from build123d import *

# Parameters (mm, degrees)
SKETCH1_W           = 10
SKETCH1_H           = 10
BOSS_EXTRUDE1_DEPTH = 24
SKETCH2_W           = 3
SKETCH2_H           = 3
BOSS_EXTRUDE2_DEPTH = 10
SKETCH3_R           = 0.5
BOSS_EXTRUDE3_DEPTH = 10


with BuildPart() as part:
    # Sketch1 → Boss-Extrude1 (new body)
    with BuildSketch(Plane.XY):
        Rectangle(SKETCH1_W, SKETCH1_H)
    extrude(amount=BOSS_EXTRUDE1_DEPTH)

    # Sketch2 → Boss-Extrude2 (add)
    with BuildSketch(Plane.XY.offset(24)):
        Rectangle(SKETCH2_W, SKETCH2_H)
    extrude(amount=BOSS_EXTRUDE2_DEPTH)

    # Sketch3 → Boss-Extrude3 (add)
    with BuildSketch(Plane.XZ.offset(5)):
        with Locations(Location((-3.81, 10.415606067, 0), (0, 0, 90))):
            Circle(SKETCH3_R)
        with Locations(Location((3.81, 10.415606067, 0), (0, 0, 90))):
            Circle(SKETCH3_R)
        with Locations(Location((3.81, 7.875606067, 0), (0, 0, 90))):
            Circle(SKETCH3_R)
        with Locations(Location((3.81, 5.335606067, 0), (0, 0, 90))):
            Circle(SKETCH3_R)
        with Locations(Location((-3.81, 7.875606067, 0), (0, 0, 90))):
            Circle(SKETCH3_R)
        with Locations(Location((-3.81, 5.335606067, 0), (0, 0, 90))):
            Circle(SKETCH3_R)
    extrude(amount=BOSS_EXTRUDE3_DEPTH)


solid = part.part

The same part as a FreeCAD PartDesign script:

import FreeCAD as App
import Part
import Sketcher
from FreeCAD import Vector
Q = App.Units.Quantity

doc = App.newDocument("Part")
body = doc.addObject("PartDesign::Body", "Body")

# Sketch on XY plane
sketch1 = body.newObject("Sketcher::SketchObject", "Sketch")
sketch1.AttachmentSupport = (doc.getObject("XY_Plane"), [""])
sketch1.MapMode = "FlatFace"
sketch1.addGeometry(Part.LineSegment(Vector(-5, 5, 0), Vector(-5, -5, 0)), False)
sketch1.addGeometry(Part.LineSegment(Vector(-5, -5, 0), Vector(5, -5, 0)), False)
sketch1.addGeometry(Part.LineSegment(Vector(5, -5, 0), Vector(5, 5, 0)), False)
sketch1.addGeometry(Part.LineSegment(Vector(5, 5, 0), Vector(-5, 5, 0)), False)
sketch1.addConstraint(Sketcher.Constraint("Coincident", 0, 2, 1, 1))
sketch1.addConstraint(Sketcher.Constraint("Coincident", 1, 2, 2, 1))
sketch1.addConstraint(Sketcher.Constraint("Coincident", 2, 2, 3, 1))
sketch1.addConstraint(Sketcher.Constraint("Coincident", 3, 2, 0, 1))
sketch1.addConstraint(Sketcher.Constraint("Vertical", 0))
sketch1.addConstraint(Sketcher.Constraint("Horizontal", 1))
sketch1.addConstraint(Sketcher.Constraint("Vertical", 2))
sketch1.addConstraint(Sketcher.Constraint("Horizontal", 3))
sketch1.addConstraint(Sketcher.Constraint("Symmetric", 0, 2, 2, 2, -1, 1))
sketch1.addConstraint(Sketcher.Constraint("Equal", 3, 0))
sketch1.addConstraint(Sketcher.Constraint("DistanceX", 1, 1, 1, 2, Q("10 mm")))
pad1 = body.newObject("PartDesign::Pad", "Pad")
pad1.Profile = sketch1
pad1.Length = 24

# Sketch on XY plane
sketch2 = body.newObject("Sketcher::SketchObject", "Sketch001")
sketch2.AttachmentSupport = (doc.getObject("XY_Plane"), [""])
sketch2.MapMode = "FlatFace"
sketch2.AttachmentOffset = App.Placement(Vector(0, 0, 24), App.Rotation())
sketch2.addGeometry(Part.LineSegment(Vector(-1.5, 1.5, 0), Vector(-1.5, -1.5, 0)), False)
sketch2.addGeometry(Part.LineSegment(Vector(-1.5, -1.5, 0), Vector(1.5, -1.5, 0)), False)
sketch2.addGeometry(Part.LineSegment(Vector(1.5, -1.5, 0), Vector(1.5, 1.5, 0)), False)
sketch2.addGeometry(Part.LineSegment(Vector(1.5, 1.5, 0), Vector(-1.5, 1.5, 0)), False)
sketch2.addConstraint(Sketcher.Constraint("Coincident", 0, 2, 1, 1))
sketch2.addConstraint(Sketcher.Constraint("Coincident", 1, 2, 2, 1))
sketch2.addConstraint(Sketcher.Constraint("Coincident", 2, 2, 3, 1))
sketch2.addConstraint(Sketcher.Constraint("Coincident", 3, 2, 0, 1))
sketch2.addConstraint(Sketcher.Constraint("Vertical", 0))
sketch2.addConstraint(Sketcher.Constraint("Horizontal", 1))
sketch2.addConstraint(Sketcher.Constraint("Vertical", 2))
sketch2.addConstraint(Sketcher.Constraint("Horizontal", 3))
sketch2.addConstraint(Sketcher.Constraint("Symmetric", 0, 2, 2, 2, -1, 1))
sketch2.addConstraint(Sketcher.Constraint("Equal", 3, 0))
sketch2.addConstraint(Sketcher.Constraint("DistanceX", 1, 1, 1, 2, Q("3 mm")))
pad2 = body.newObject("PartDesign::Pad", "Pad001")
pad2.Profile = sketch2
pad2.Length = 10

# Sketch on XZ plane
sketch3 = body.newObject("Sketcher::SketchObject", "Sketch002")
sketch3.AttachmentSupport = (doc.getObject("XZ_Plane"), [""])
sketch3.MapMode = "FlatFace"
sketch3.AttachmentOffset = App.Placement(Vector(0, 0, 5), App.Rotation())
sketch3.addGeometry(Part.Circle(Vector(-3.81, 10.415606, 0), Vector(0, 0, 1), 0.5), False)
sketch3.addGeometry(Part.Circle(Vector(3.81, 10.415606, 0), Vector(0, 0, 1), 0.5), False)
sketch3.addGeometry(Part.Circle(Vector(3.81, 7.875606, 0), Vector(0, 0, 1), 0.5), False)
sketch3.addGeometry(Part.Circle(Vector(3.81, 5.335606, 0), Vector(0, 0, 1), 0.5), False)
sketch3.addGeometry(Part.Circle(Vector(-3.81, 7.875606, 0), Vector(0, 0, 1), 0.5), False)
sketch3.addGeometry(Part.Circle(Vector(-3.81, 5.335606, 0), Vector(0, 0, 1), 0.5), False)
sketch3.addConstraint(Sketcher.Constraint("Equal", 0, 1))
sketch3.addConstraint(Sketcher.Constraint("Equal", 1, 2))
sketch3.addConstraint(Sketcher.Constraint("Equal", 2, 3))
sketch3.addConstraint(Sketcher.Constraint("Equal", 3, 4))
sketch3.addConstraint(Sketcher.Constraint("Equal", 4, 5))
sketch3.addConstraint(Sketcher.Constraint("Symmetric", 0, 3, 1, 3, -2))
sketch3.addConstraint(Sketcher.Constraint("Symmetric", 2, 3, 4, 3, -2))
sketch3.addConstraint(Sketcher.Constraint("Symmetric", 3, 3, 5, 3, -2))
sketch3.addConstraint(Sketcher.Constraint("Vertical", 1, 3, 2, 3))
sketch3.addConstraint(Sketcher.Constraint("Vertical", 2, 3, 3, 3))
sketch3.addConstraint(Sketcher.Constraint("Diameter", 0, Q("1 mm")))
sketch3.addConstraint(Sketcher.Constraint("DistanceX", 0, 3, -1, 1, Q("3.81 mm")))
sketch3.addConstraint(Sketcher.Constraint("DistanceY", 2, 3, 1, 3, Q("2.54 mm")))
sketch3.addConstraint(Sketcher.Constraint("DistanceY", 3, 3, 2, 3, Q("2.54 mm")))
sketch3.addConstraint(Sketcher.Constraint("DistanceY", -1, 1, 0, 3, Q("10.415606 mm")))
pad3 = body.newObject("PartDesign::Pad", "Pad002")
pad3.Profile = sketch3
pad3.Length = 10

doc.recompute()
